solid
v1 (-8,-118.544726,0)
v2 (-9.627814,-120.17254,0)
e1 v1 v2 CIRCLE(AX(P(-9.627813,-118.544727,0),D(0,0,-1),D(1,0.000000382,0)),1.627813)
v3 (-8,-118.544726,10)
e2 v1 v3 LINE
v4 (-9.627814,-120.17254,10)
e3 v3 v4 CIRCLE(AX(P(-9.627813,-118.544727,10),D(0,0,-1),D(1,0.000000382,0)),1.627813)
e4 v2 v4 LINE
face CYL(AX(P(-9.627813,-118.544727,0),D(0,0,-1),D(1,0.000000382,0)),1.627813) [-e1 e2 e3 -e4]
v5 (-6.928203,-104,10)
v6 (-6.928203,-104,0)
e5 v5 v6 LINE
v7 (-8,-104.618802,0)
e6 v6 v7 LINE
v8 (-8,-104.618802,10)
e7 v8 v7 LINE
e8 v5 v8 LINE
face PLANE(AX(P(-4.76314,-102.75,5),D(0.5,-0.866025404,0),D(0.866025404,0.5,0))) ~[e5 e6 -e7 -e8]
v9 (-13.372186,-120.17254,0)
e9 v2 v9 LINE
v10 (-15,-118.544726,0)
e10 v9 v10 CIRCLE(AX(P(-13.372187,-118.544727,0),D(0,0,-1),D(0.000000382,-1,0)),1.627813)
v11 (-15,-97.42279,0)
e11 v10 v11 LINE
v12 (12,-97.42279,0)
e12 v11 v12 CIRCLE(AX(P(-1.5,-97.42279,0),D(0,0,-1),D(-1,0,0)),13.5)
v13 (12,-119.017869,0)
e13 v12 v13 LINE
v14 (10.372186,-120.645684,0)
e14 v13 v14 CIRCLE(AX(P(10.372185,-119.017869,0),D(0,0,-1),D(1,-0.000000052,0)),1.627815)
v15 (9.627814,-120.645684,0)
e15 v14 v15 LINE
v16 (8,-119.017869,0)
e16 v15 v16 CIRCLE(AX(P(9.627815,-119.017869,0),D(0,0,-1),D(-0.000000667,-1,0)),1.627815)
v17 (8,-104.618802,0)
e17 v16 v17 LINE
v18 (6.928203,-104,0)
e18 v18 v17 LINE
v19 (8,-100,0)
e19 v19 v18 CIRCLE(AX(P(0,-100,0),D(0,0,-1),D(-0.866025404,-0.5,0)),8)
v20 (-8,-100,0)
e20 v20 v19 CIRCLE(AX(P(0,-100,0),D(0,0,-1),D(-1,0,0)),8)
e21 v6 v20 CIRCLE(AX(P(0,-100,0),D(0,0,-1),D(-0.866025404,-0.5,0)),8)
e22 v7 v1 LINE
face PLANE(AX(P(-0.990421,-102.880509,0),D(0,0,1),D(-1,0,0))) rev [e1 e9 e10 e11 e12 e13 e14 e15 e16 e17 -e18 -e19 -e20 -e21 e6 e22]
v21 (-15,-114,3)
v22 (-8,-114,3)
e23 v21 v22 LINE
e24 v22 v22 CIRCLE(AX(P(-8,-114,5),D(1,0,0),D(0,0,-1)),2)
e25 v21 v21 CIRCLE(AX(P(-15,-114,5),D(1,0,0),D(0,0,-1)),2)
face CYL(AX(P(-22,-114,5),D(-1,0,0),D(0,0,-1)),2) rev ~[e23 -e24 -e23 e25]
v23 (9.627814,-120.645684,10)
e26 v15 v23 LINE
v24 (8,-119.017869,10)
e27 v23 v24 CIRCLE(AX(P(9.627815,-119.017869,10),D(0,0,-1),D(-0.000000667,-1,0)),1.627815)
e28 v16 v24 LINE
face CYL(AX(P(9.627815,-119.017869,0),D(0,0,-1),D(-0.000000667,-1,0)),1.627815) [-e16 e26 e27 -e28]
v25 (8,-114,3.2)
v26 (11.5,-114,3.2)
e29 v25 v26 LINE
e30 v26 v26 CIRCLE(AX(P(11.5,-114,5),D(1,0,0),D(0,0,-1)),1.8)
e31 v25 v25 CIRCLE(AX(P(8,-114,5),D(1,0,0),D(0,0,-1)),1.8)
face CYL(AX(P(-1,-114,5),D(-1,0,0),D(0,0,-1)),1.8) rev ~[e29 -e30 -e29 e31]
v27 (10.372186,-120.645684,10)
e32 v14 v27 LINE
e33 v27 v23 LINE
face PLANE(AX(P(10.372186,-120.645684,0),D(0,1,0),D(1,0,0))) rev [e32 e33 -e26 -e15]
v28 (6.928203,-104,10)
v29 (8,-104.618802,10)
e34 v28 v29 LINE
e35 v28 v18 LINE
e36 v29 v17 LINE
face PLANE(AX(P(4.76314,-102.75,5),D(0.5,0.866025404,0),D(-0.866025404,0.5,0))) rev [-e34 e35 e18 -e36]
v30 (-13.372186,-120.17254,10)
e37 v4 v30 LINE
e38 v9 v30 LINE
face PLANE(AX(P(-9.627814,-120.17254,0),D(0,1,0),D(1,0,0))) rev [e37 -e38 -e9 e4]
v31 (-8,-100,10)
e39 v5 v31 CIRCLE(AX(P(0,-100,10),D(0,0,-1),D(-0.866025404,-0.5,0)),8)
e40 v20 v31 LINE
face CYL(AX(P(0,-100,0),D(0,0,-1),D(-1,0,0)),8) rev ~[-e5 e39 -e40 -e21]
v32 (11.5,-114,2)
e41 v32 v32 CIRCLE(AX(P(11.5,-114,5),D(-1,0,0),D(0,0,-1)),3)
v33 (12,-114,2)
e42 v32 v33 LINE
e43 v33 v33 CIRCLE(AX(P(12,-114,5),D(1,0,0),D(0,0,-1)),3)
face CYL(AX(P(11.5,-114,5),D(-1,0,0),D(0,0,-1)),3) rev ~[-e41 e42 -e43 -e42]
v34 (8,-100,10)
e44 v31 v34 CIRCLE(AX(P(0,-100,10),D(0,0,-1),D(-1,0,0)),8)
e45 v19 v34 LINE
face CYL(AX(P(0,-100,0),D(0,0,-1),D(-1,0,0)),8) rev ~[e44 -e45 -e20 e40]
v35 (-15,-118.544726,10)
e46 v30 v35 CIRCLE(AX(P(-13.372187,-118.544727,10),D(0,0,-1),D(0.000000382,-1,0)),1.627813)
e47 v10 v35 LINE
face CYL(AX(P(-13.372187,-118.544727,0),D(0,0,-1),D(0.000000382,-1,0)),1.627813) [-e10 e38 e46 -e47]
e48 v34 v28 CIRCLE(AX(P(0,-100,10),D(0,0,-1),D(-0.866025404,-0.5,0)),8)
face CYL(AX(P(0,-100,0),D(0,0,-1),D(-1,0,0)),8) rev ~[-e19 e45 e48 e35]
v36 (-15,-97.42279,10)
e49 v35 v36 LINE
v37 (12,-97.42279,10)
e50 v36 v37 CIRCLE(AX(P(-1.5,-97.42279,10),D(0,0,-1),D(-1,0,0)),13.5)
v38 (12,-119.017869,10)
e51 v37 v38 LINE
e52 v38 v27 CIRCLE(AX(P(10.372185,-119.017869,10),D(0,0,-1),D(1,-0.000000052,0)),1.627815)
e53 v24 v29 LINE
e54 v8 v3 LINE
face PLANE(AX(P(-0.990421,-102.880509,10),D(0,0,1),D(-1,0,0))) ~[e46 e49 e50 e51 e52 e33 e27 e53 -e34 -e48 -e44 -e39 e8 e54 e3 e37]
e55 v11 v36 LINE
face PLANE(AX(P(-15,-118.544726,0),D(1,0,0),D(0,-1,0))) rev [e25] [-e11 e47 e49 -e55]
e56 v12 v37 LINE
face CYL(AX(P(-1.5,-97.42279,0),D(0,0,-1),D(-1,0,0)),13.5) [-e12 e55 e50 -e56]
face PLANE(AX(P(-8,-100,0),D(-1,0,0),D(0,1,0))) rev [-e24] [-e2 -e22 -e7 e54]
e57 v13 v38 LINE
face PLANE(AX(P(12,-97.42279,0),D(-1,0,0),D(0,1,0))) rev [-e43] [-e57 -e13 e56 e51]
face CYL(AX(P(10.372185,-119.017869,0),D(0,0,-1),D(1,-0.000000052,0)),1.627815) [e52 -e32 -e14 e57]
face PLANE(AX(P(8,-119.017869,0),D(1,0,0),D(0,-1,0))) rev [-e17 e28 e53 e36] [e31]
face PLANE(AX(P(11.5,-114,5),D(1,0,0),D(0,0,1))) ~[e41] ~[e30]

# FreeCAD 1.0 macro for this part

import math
import FreeCAD as App
import Part
import Sketcher
from FreeCAD import Vector
Q = App.Units.Quantity


def add_polygon(sketch, points):
    """Adds a closed chain of lines whose ends are joined by coincident constraints."""
    first, n = sketch.GeometryCount, len(points)
    for a, b in zip(points, points[1:] + points[:1]):
        sketch.addGeometry(Part.LineSegment(App.Vector(*a, 0), App.Vector(*b, 0)), False)
    for i in range(n):
        sketch.addConstraint(Sketcher.Constraint("Coincident", first + i, 2, first + (i + 1) % n, 1))

doc = App.newDocument("Part")
params = doc.addObject("Spreadsheet::Sheet", "Params")
for row, (alias, value) in enumerate([
    ("sketch1_diameter", "3.6 mm"),
    ("pad1_length", "20 mm"),
    ("sketch2_diameter", "6 mm"),
    ("pad2_length", "20 mm"),
    ("sketch3_diameter", "4 mm"),
    ("pad3_length", "20 mm"),
    ("sketch4_diameter", "16 mm"),
    ("pad4_length", "10 mm"),
    ("sketch5_width", "11 mm"),
    ("sketch5_height", "10 mm"),
    ("revolution_angle", "240 deg"),
    ("sketch6_radius", "8 mm"),
    ("sketch6_radius2", "13.5 mm"),
    ("pad5_length", "10 mm"),
], start=1):
    params.set(f"A{row}", alias)
    params.set(f"B{row}", "=" + value)
    params.setAlias(f"B{row}", alias)

body = doc.addObject("PartDesign::Body", "Body")

# Sketch on YZ plane
sketch1 = body.newObject("Sketcher::SketchObject", "Sketch")
sketch1.AttachmentSupport = (doc.getObject("YZ_Plane"), [""])
sketch1.MapMode = "FlatFace"
sketch1.AttachmentOffset = App.Placement(Vector(0, 0, -1), App.Rotation())
sketch1.addGeometry(Part.Circle(Vector(14, 5, 0), Vector(0, 0, 1), 1.8), False)
sketch1.addConstraint(Sketcher.Constraint("Diameter", 0, Q("3.6 mm")))
sketch1.addConstraint(Sketcher.Constraint("DistanceX", -1, 1, 0, 3, Q("14 mm")))
sketch1.addConstraint(Sketcher.Constraint("DistanceY", -1, 1, 0, 3, Q("5 mm")))
sketch1.setExpression("Constraints[0]", "Params.sketch1_diameter")
pad1 = body.newObject("PartDesign::Pad", "Pad")
pad1.Profile = sketch1
pad1.setExpression("Length", "Params.pad1_length")
body2 = doc.addObject("PartDesign::Body", "Body001")

# Sketch on YZ plane
sketch2 = body2.newObject("Sketcher::SketchObject", "Sketch001")
sketch2.AttachmentSupport = (doc.getObject("YZ_Plane001"), [""])
sketch2.MapMode = "FlatFace"
sketch2.AttachmentOffset = App.Placement(Vector(0, 0, 11.5), App.Rotation())
sketch2.addGeometry(Part.Circle(Vector(14, 5, 0), Vector(0, 0, 1), 3), False)
sketch2.addConstraint(Sketcher.Constraint("Diameter", 0, Q("6 mm")))
sketch2.addConstraint(Sketcher.Constraint("DistanceX", -1, 1, 0, 3, Q("14 mm")))
sketch2.addConstraint(Sketcher.Constraint("DistanceY", -1, 1, 0, 3, Q("5 mm")))
sketch2.setExpression("Constraints[0]", "Params.sketch2_diameter")
pad2 = body2.newObject("PartDesign::Pad", "Pad001")
pad2.Profile = sketch2
pad2.setExpression("Length", "Params.pad2_length")
body3 = doc.addObject("PartDesign::Body", "Body002")
body3.AllowCompound = True

# Sketch on YZ plane
sketch3 = body3.newObject("Sketcher::SketchObject", "Sketch002")
sketch3.AttachmentSupport = (doc.getObject("YZ_Plane002"), [""])
sketch3.MapMode = "FlatFace"
sketch3.AttachmentOffset = App.Placement(Vector(0, 0, -22), App.Rotation())
sketch3.addGeometry(Part.Circle(Vector(14, 5, 0), Vector(0, 0, 1), 2), False)
sketch3.addConstraint(Sketcher.Constraint("Diameter", 0, Q("4 mm")))
sketch3.addConstraint(Sketcher.Constraint("DistanceX", -1, 1, 0, 3, Q("14 mm")))
sketch3.addConstraint(Sketcher.Constraint("DistanceY", -1, 1, 0, 3, Q("5 mm")))
sketch3.setExpression("Constraints[0]", "Params.sketch3_diameter")
pad3 = body3.newObject("PartDesign::Pad", "Pad002")
pad3.Profile = sketch3
pad3.setExpression("Length", "Params.pad3_length")
doc.recompute()

boolean = body3.newObject("PartDesign::Boolean", "Boolean")
boolean.Type = "Fuse"
boolean.addObjects([body])
doc.recompute()

boolean2 = body3.newObject("PartDesign::Boolean", "Boolean001")
boolean2.Type = "Fuse"
boolean2.addObjects([body2])
body4 = doc.addObject("PartDesign::Body", "Body003")

# Sketch on XY plane
sketch4 = body4.newObject("Sketcher::SketchObject", "Sketch003")
sketch4.AttachmentSupport = (doc.getObject("XY_Plane003"), [""])
sketch4.MapMode = "FlatFace"
sketch4.addGeometry(Part.Circle(Vector(0, 0, 0), Vector(0, 0, 1), 8), False)
sketch4.addConstraint(Sketcher.Constraint("Coincident", 0, 3, -1, 1))
sketch4.addConstraint(Sketcher.Constraint("Diameter", 0, Q("16 mm")))
sketch4.setExpression("Constraints[1]", "Params.sketch4_diameter")
pad4 = body4.newObject("PartDesign::Pad", "Pad003")
pad4.Profile = sketch4
pad4.setExpression("Length", "Params.pad4_length")
body5 = doc.addObject("PartDesign::Body", "Body004")

# Sketch on XZ plane
sketch5 = body5.newObject("Sketcher::SketchObject", "Sketch004")
sketch5.AttachmentSupport = (doc.getObject("XZ_Plane004"), [""])
sketch5.MapMode = "FlatFace"
add_polygon(sketch5, [(0, 10), (0, 0), (11, 0), (11, 10)])  # lines 0-3
sketch5.addConstraint(Sketcher.Constraint("Vertical", 0))
sketch5.addConstraint(Sketcher.Constraint("Horizontal", 1))
sketch5.addConstraint(Sketcher.Constraint("Vertical", 2))
sketch5.addConstraint(Sketcher.Constraint("Horizontal", 3))
sketch5.addConstraint(Sketcher.Constraint("Coincident", 0, 2, -1, 1))
sketch5.addConstraint(Sketcher.Constraint("DistanceX", 1, 1, 1, 2, Q("11 mm")))
sketch5.addConstraint(Sketcher.Constraint("DistanceY", 0, 2, 0, 1, Q("10 mm")))
sketch5.setExpression("Constraints[9]", "Params.sketch5_width")
sketch5.setExpression("Constraints[10]", "Params.sketch5_height")
revolution = body5.newObject("PartDesign::Revolution", "Revolution")
revolution.Profile = sketch5
revolution.ReferenceAxis = (sketch5, ["V_Axis"])
revolution.setExpression("Angle", "Params.revolution_angle")
body6 = doc.addObject("PartDesign::Body", "Body005")
doc.recompute()

body5.Placement = App.Placement(Vector(0, 0, 0), App.Rotation(Vector(0, 0, 1), 150))
boolean3 = body6.newObject("PartDesign::Boolean", "Boolean002")
boolean3.Type = "Fuse"
boolean3.addObjects([body5])
doc.recompute()

boolean4 = body6.newObject("PartDesign::Boolean", "Boolean003")
boolean4.Type = "Cut"
boolean4.addObjects([body4])
body7 = doc.addObject("PartDesign::Body", "Body006")

# Sketch on XY plane
sketch6 = body7.newObject("Sketcher::SketchObject", "Sketch005")
sketch6.AttachmentSupport = (doc.getObject("XY_Plane006"), [""])
sketch6.MapMode = "FlatFace"
sketch6.addGeometry(Part.LineSegment(Vector(12, -2.57721, 0), Vector(12, 19.017869, 0)), False)
sketch6.addGeometry(Part.ArcOfCircle(Part.Circle(Vector(10.372185, 19.017869, 0), Vector(0, 0, 1), 1.627815), math.radians(0.000003), math.radians(89.999962)), False)
sketch6.addGeometry(Part.LineSegment(Vector(10.372186, 20.645684, 0), Vector(9.627814, 20.645684, 0)), False)
sketch6.addGeometry(Part.ArcOfCircle(Part.Circle(Vector(9.627815, 19.017869, 0), Vector(0, 0, 1), 1.627815), math.radians(90.000038), math.radians(179.999997)), False)
sketch6.addGeometry(Part.LineSegment(Vector(8, 19.017869, 0), Vector(8, 0, 0)), False)
sketch6.addGeometry(Part.ArcOfCircle(Part.Circle(Vector(0, 0, 0), Vector(0, 0, 1), 8), math.radians(180), math.radians(360)), False)
sketch6.addGeometry(Part.LineSegment(Vector(-8, 0, 0), Vector(-8, 18.544726, 0)), False)
sketch6.addGeometry(Part.ArcOfCircle(Part.Circle(Vector(-9.627813, 18.544727, 0), Vector(0, 0, 1), 1.627813), math.radians(-0.000022), math.radians(90.000022)), False)
sketch6.addGeometry(Part.LineSegment(Vector(-9.627814, 20.17254, 0), Vector(-13.372186, 20.17254, 0)), False)
sketch6.addGeometry(Part.ArcOfCircle(Part.Circle(Vector(-13.372187, 18.544727, 0), Vector(0, 0, 1), 1.627813), math.radians(89.999978), math.radians(180.000022)), False)
sketch6.addGeometry(Part.LineSegment(Vector(-15, 18.544726, 0), Vector(-15, -2.57721, 0)), False)
sketch6.addGeometry(Part.ArcOfCircle(Part.Circle(Vector(-1.5, -2.57721, 0), Vector(0, 0, 1), 13.5), math.radians(180), math.radians(360)), False)
sketch6.addConstraint(Sketcher.Constraint("Tangent", 0, 2, 1, 1))
sketch6.addConstraint(Sketcher.Constraint("Tangent", 1, 2, 2, 1))
sketch6.addConstraint(Sketcher.Constraint("Tangent", 2, 2, 3, 1))
sketch6.addConstraint(Sketcher.Constraint("Tangent", 3, 2, 4, 1))
sketch6.addConstraint(Sketcher.Constraint("Tangent", 4, 2, 5, 2))
sketch6.addConstraint(Sketcher.Constraint("Tangent", 5, 1, 6, 1))
sketch6.addConstraint(Sketcher.Constraint("Tangent", 6, 2, 7, 1))
sketch6.addConstraint(Sketcher.Constraint("Tangent", 7, 2, 8, 1))
sketch6.addConstraint(Sketcher.Constraint("Tangent", 8, 2, 9, 1))
sketch6.addConstraint(Sketcher.Constraint("Tangent", 9, 2, 10, 1))
sketch6.addConstraint(Sketcher.Constraint("Tangent", 10, 2, 11, 1))
sketch6.addConstraint(Sketcher.Constraint("Tangent", 11, 2, 0, 1))
sketch6.addConstraint(Sketcher.Constraint("Vertical", 0))
sketch6.addConstraint(Sketcher.Constraint("Horizontal", 2))
sketch6.addConstraint(Sketcher.Constraint("Vertical", 4))
sketch6.addConstraint(Sketcher.Constraint("Vertical", 6))
sketch6.addConstraint(Sketcher.Constraint("Horizontal", 8))
sketch6.addConstraint(Sketcher.Constraint("Vertical", 10))
sketch6.addConstraint(Sketcher.Constraint("Coincident", 5, 3, -1, 1))
sketch6.addConstraint(Sketcher.Constraint("Equal", 1, 3))
sketch6.addConstraint(Sketcher.Constraint("Equal", 3, 7))
sketch6.addConstraint(Sketcher.Constraint("Equal", 7, 9))
sketch6.addConstraint(Sketcher.Constraint("Radius", 5, Q("8 mm")))
sketch6.addConstraint(Sketcher.Constraint("Radius", 11, Q("13.5 mm")))
sketch6.addConstraint(Sketcher.Constraint("DistanceX", -1, 1, 0, 2, Q("12 mm")))
sketch6.addConstraint(Sketcher.Constraint("Radius", 1, Q("1.627815 mm")))
sketch6.addConstraint(Sketcher.Constraint("DistanceY", 0, 1, 0, 2, Q("21.595079 mm")))
sketch6.addConstraint(Sketcher.Constraint("DistanceY", 4, 2, 4, 1, Q("19.017869 mm")))
sketch6.addConstraint(Sketcher.Constraint("DistanceY", 6, 1, 6, 2, Q("18.544726 mm")))
sketch6.setExpression("Constraints[22]", "Params.sketch6_radius")
sketch6.setExpression("Constraints[23]", "Params.sketch6_radius2")
pad5 = body7.newObject("PartDesign::Pad", "Pad004")
pad5.Profile = sketch6
pad5.setExpression("Length", "Params.pad5_length")
doc.recompute()

boolean5 = body7.newObject("PartDesign::Boolean", "Boolean004")
boolean5.Type = "Fuse"
boolean5.addObjects([body6])
doc.recompute()

boolean6 = body7.newObject("PartDesign::Boolean", "Boolean005")
boolean6.Type = "Cut"
boolean6.addObjects([body3])
body8 = doc.addObject("PartDesign::Body", "Body007")
doc.recompute()

mirroring = doc.addObject("Part::Mirroring", "Mirroring")
mirroring.Source = body7
mirroring.Base = Vector(0, -50, 0)
mirroring.Normal = Vector(0, 1, 0)
body8.BaseFeature = mirroring
doc.recompute()
body7.Visibility = False
mirroring.Visibility = False

doc.recompute()
